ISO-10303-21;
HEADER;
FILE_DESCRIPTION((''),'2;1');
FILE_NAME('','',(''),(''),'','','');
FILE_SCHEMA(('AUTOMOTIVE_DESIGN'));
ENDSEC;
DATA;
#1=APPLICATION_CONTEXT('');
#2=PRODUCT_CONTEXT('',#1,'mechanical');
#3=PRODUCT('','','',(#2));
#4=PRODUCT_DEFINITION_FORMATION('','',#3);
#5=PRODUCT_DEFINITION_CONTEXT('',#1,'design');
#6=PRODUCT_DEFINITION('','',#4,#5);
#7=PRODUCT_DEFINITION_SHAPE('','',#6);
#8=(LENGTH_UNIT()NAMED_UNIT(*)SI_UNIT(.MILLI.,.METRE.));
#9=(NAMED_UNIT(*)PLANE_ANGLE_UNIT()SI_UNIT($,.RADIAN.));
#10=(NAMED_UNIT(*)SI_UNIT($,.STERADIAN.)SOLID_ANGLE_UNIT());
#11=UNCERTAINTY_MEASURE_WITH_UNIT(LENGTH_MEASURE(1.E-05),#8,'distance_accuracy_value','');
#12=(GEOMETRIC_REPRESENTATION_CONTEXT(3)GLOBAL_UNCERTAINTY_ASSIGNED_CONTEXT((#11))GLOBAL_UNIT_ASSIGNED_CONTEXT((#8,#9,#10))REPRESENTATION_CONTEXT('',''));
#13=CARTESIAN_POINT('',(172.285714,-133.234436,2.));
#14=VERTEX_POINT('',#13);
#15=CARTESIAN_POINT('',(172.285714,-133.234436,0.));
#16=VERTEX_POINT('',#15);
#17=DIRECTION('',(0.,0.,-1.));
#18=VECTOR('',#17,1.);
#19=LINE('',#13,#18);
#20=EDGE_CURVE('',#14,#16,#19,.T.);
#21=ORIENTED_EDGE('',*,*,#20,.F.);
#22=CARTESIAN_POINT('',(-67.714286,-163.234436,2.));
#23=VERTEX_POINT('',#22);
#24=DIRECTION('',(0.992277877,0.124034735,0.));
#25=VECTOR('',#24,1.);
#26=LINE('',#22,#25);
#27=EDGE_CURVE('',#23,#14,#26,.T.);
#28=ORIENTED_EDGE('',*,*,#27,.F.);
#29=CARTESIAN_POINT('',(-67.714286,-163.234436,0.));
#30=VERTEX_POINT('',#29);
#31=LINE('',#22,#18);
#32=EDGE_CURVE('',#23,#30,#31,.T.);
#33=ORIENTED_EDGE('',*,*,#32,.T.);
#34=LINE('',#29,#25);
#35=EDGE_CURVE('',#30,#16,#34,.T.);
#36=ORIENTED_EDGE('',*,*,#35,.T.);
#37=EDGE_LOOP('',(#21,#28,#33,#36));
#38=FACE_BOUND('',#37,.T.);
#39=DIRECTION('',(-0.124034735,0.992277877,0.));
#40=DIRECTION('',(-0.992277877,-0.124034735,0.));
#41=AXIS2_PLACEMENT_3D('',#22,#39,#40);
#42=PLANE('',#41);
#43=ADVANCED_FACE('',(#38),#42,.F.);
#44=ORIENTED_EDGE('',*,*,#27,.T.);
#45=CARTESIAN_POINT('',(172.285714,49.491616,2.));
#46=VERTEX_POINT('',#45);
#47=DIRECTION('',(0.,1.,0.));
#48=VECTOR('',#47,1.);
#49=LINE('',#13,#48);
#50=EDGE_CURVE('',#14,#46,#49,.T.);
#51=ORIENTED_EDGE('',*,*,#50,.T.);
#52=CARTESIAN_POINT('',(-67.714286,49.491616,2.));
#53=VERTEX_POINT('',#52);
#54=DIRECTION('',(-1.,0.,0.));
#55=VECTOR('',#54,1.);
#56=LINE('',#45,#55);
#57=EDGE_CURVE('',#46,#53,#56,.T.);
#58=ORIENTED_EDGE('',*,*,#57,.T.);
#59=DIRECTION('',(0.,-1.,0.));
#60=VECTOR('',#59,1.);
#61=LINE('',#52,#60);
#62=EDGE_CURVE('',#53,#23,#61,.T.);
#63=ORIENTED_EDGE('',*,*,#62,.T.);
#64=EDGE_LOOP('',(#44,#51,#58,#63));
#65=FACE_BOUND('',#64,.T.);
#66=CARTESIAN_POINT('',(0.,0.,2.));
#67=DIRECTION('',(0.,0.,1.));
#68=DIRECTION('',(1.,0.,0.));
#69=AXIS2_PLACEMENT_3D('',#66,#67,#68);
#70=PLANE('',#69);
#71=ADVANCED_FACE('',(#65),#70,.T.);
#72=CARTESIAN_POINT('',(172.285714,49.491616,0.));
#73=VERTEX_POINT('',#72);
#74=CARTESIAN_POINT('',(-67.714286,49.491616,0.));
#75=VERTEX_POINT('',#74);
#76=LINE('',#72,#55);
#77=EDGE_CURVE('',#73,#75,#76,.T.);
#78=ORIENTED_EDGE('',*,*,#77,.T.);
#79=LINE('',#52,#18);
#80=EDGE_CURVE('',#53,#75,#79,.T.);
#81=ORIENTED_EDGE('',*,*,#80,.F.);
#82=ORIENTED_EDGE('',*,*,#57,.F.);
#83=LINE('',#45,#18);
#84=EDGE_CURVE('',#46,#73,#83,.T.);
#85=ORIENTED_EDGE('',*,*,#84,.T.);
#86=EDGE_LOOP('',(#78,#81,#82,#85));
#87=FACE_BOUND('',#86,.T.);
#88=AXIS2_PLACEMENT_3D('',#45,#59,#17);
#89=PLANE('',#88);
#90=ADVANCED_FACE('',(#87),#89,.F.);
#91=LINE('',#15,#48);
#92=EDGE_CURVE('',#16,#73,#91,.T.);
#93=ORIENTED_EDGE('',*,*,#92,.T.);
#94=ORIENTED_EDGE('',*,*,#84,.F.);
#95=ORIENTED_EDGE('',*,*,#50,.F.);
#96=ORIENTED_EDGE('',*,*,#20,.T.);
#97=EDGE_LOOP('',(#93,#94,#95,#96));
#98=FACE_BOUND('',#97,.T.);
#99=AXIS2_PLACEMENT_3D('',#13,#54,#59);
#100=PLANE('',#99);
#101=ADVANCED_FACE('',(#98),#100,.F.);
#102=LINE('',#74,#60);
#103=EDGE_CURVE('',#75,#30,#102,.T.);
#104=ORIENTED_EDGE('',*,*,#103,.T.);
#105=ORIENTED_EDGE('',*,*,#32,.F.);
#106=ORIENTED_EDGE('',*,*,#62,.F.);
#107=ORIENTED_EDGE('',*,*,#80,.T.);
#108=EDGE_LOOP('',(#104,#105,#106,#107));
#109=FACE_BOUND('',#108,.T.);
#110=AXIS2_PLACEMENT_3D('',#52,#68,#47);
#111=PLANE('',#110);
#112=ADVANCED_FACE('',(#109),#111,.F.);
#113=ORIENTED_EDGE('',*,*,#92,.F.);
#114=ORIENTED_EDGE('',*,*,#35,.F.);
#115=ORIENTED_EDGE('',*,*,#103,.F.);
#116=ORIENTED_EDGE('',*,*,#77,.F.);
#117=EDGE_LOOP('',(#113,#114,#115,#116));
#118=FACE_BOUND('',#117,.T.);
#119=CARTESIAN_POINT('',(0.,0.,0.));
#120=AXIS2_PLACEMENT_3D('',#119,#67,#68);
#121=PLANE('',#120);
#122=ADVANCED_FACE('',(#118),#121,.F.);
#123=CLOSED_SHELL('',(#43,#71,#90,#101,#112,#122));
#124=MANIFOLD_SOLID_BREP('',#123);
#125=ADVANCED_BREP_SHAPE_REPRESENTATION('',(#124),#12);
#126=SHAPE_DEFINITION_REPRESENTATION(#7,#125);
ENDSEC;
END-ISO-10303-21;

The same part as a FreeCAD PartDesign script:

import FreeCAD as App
import Part
import Sketcher

doc = App.newDocument("Part")
body = doc.addObject("PartDesign::Body", "Body")

sketch1 = body.newObject("Sketcher::SketchObject", "Sketch")
sketch1.AttachmentSupport = (doc.getObject("XY_Plane"), [""])
sketch1.MapMode = "FlatFace"
sketch1.addGeometry(Part.LineSegment(App.Vector(172.285714, -133.234436, 0), App.Vector(172.285714, 49.491616, 0)), False)
sketch1.addGeometry(Part.LineSegment(App.Vector(172.285714, 49.491616, 0), App.Vector(-67.714286, 49.491616, 0)), False)
sketch1.addGeometry(Part.LineSegment(App.Vector(-67.714286, 49.491616, 0), App.Vector(-67.714286, -163.234436, 0)), False)
sketch1.addGeometry(Part.LineSegment(App.Vector(-67.714286, -163.234436, 0), App.Vector(172.285714, -133.234436, 0)), False)
sketch1.addConstraint(Sketcher.Constraint("Coincident", 0, 2, 1, 1))
sketch1.addConstraint(Sketcher.Constraint("Coincident", 1, 2, 2, 1))
sketch1.addConstraint(Sketcher.Constraint("Coincident", 2, 2, 3, 1))
sketch1.addConstraint(Sketcher.Constraint("Coincident", 3, 2, 0, 1))
sketch1.addConstraint(Sketcher.Constraint("Vertical", 0))
sketch1.addConstraint(Sketcher.Constraint("Horizontal", 1))
sketch1.addConstraint(Sketcher.Constraint("Vertical", 2))
sketch1.addConstraint(Sketcher.Constraint("DistanceX", 1, 2, 1, 1, 240.0))
sketch1.addConstraint(Sketcher.Constraint("DistanceY", 2, 2, 3, 2, 30.0))
sketch1.addConstraint(Sketcher.Constraint("DistanceY", 0, 1, 0, 2, 182.726052))
sketch1.addConstraint(Sketcher.Constraint("DistanceX", -1, 1, 0, 2, 172.285714))
sketch1.addConstraint(Sketcher.Constraint("DistanceY", -1, 1, 0, 2, 49.491616))
pad1 = body.newObject("PartDesign::Pad", "Pad")
pad1.Profile = sketch1
pad1.Length = 2

doc.recompute()
